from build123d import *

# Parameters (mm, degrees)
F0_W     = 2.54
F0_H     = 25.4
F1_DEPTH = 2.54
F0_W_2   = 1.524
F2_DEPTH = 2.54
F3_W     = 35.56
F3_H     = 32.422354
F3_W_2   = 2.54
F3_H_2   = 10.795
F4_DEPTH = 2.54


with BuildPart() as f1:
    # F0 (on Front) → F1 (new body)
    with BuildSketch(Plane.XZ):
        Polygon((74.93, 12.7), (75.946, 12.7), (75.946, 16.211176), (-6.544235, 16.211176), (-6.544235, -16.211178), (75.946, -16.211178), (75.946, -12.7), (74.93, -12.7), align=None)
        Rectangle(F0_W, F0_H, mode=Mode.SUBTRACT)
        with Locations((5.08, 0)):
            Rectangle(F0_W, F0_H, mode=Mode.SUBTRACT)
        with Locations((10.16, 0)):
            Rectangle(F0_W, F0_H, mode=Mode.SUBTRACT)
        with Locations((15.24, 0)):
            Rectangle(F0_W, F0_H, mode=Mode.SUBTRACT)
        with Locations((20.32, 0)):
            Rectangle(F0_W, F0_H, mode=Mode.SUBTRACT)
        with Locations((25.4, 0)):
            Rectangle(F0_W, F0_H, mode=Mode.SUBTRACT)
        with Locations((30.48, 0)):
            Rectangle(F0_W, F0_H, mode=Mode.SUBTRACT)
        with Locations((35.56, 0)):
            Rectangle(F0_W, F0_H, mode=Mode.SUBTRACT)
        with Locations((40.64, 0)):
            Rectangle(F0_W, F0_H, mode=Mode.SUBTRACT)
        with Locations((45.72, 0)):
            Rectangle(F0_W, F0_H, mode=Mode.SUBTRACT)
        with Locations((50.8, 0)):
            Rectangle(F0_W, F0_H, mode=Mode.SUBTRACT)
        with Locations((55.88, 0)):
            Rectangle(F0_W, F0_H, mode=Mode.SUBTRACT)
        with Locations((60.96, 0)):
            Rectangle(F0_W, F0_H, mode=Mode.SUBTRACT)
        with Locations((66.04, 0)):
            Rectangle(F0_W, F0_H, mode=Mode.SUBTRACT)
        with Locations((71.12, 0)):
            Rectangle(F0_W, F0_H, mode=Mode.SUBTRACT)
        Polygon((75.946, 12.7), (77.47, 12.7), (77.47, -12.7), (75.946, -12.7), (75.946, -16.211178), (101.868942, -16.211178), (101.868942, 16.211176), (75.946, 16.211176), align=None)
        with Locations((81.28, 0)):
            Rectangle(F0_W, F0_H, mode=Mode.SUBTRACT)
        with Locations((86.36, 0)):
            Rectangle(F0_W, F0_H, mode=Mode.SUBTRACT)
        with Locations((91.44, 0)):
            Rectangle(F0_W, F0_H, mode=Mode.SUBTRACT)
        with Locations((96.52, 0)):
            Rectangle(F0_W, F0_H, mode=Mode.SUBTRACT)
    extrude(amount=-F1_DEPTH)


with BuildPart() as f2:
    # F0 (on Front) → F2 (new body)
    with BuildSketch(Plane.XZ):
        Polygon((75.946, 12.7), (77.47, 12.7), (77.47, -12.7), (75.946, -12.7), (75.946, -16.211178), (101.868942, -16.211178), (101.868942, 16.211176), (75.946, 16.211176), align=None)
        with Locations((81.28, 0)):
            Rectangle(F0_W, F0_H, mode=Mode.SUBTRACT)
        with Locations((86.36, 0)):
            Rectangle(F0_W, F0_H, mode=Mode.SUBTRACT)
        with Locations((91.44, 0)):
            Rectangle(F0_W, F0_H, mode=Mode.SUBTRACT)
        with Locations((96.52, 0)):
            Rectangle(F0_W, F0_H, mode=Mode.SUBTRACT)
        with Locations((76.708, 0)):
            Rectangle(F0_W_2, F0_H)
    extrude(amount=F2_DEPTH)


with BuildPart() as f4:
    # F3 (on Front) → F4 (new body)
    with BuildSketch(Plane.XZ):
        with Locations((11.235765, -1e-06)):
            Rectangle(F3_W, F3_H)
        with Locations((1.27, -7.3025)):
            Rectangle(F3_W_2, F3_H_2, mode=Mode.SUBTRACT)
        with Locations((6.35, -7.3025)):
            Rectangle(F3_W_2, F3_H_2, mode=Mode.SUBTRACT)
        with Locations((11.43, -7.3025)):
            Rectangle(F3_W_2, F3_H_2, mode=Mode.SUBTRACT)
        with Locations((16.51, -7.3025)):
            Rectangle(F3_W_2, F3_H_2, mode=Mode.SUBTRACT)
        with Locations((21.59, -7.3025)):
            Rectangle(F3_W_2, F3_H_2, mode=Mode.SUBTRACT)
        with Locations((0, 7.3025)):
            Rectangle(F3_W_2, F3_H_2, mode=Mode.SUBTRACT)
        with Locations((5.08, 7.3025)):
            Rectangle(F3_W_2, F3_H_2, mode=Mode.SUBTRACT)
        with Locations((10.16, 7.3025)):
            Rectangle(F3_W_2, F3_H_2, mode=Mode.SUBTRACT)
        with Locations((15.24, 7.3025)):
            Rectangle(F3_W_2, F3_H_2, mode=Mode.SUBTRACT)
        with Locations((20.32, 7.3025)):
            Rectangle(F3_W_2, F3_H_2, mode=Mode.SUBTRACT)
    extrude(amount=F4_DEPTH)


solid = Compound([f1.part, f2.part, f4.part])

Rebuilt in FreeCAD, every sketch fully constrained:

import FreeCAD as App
import Part
import Sketcher
Q = App.Units.Quantity


def add_polygon(sketch, points):
    """Adds a closed chain of lines whose ends are joined by coincident constraints."""
    first, n = sketch.GeometryCount, len(points)
    for a, b in zip(points, points[1:] + points[:1]):
        sketch.addGeometry(Part.LineSegment(App.Vector(*a, 0), App.Vector(*b, 0)), False)
    for i in range(n):
        sketch.addConstraint(Sketcher.Constraint("Coincident", first + i, 2, first + (i + 1) % n, 1))

doc = App.newDocument("Part")
body = doc.addObject("PartDesign::Body", "Body")

# Sketch on XZ plane
sketch1 = doc.addObject("Sketcher::SketchObject", "Sketch")
body.addObject(sketch1)
sketch1.AttachmentSupport = (doc.XZ_Plane, [""])
sketch1.MapMode = "FlatFace"
add_polygon(sketch1, [(-6.544235, 16.211176), (-6.544235, -16.211178), (101.868942, -16.211178), (101.868942, 16.211176)])  # lines 0-3
add_polygon(sketch1, [(1.27, -12.7), (-1.27, -12.7), (-1.27, 12.7), (1.27, 12.7)])  # lines 4-7
add_polygon(sketch1, [(6.35, -12.7), (3.81, -12.7), (3.81, 12.7), (6.35, 12.7)])  # lines 8-11
add_polygon(sketch1, [(11.43, -12.7), (8.89, -12.7), (8.89, 12.7), (11.43, 12.7)])  # lines 12-15
add_polygon(sketch1, [(16.51, -12.7), (13.97, -12.7), (13.97, 12.7), (16.51, 12.7)])  # lines 16-19
add_polygon(sketch1, [(21.59, -12.7), (19.05, -12.7), (19.05, 12.7), (21.59, 12.7)])  # lines 20-23
add_polygon(sketch1, [(26.67, -12.7), (24.13, -12.7), (24.13, 12.7), (26.67, 12.7)])  # lines 24-27
add_polygon(sketch1, [(31.75, -12.7), (29.21, -12.7), (29.21, 12.7), (31.75, 12.7)])  # lines 28-31
add_polygon(sketch1, [(36.83, -12.7), (34.29, -12.7), (34.29, 12.7), (36.83, 12.7)])  # lines 32-35
add_polygon(sketch1, [(41.91, -12.7), (39.37, -12.7), (39.37, 12.7), (41.91, 12.7)])  # lines 36-39
add_polygon(sketch1, [(46.99, -12.7), (44.45, -12.7), (44.45, 12.7), (46.99, 12.7)])  # lines 40-43
add_polygon(sketch1, [(52.07, -12.7), (49.53, -12.7), (49.53, 12.7), (52.07, 12.7)])  # lines 44-47
add_polygon(sketch1, [(57.15, -12.7), (54.61, -12.7), (54.61, 12.7), (57.15, 12.7)])  # lines 48-51
add_polygon(sketch1, [(62.23, -12.7), (59.69, -12.7), (59.69, 12.7), (62.23, 12.7)])  # lines 52-55
add_polygon(sketch1, [(67.31, -12.7), (64.77, -12.7), (64.77, 12.7), (67.31, 12.7)])  # lines 56-59
add_polygon(sketch1, [(72.39, -12.7), (69.85, -12.7), (69.85, 12.7), (72.39, 12.7)])  # lines 60-63
add_polygon(sketch1, [(74.93, 12.7), (77.47, 12.7), (77.47, -12.7), (74.93, -12.7)])  # lines 64-67
add_polygon(sketch1, [(82.55, -12.7), (80.01, -12.7), (80.01, 12.7), (82.55, 12.7)])  # lines 68-71
add_polygon(sketch1, [(87.63, -12.7), (85.09, -12.7), (85.09, 12.7), (87.63, 12.7)])  # lines 72-75
add_polygon(sketch1, [(92.71, -12.7), (90.17, -12.7), (90.17, 12.7), (92.71, 12.7)])  # lines 76-79
add_polygon(sketch1, [(97.79, -12.7), (95.25, -12.7), (95.25, 12.7), (97.79, 12.7)])  # lines 80-83
sketch1.addConstraint(Sketcher.Constraint("Vertical", 0))
sketch1.addConstraint(Sketcher.Constraint("Horizontal", 1))
sketch1.addConstraint(Sketcher.Constraint("Vertical", 2))
sketch1.addConstraint(Sketcher.Constraint("Horizontal", 3))
sketch1.addConstraint(Sketcher.Constraint("Horizontal", 4))
sketch1.addConstraint(Sketcher.Constraint("Vertical", 5))
sketch1.addConstraint(Sketcher.Constraint("Horizontal", 6))
sketch1.addConstraint(Sketcher.Constraint("Vertical", 7))
sketch1.addConstraint(Sketcher.Constraint("Horizontal", 8))
sketch1.addConstraint(Sketcher.Constraint("Vertical", 9))
sketch1.addConstraint(Sketcher.Constraint("Horizontal", 10))
sketch1.addConstraint(Sketcher.Constraint("Vertical", 11))
sketch1.addConstraint(Sketcher.Constraint("Horizontal", 12))
sketch1.addConstraint(Sketcher.Constraint("Vertical", 13))
sketch1.addConstraint(Sketcher.Constraint("Horizontal", 14))
sketch1.addConstraint(Sketcher.Constraint("Vertical", 15))
sketch1.addConstraint(Sketcher.Constraint("Horizontal", 16))
sketch1.addConstraint(Sketcher.Constraint("Vertical", 17))
sketch1.addConstraint(Sketcher.Constraint("Horizontal", 18))
sketch1.addConstraint(Sketcher.Constraint("Vertical", 19))
sketch1.addConstraint(Sketcher.Constraint("Horizontal", 20))
sketch1.addConstraint(Sketcher.Constraint("Vertical", 21))
sketch1.addConstraint(Sketcher.Constraint("Horizontal", 22))
sketch1.addConstraint(Sketcher.Constraint("Vertical", 23))
sketch1.addConstraint(Sketcher.Constraint("Horizontal", 24))
sketch1.addConstraint(Sketcher.Constraint("Vertical", 25))
sketch1.addConstraint(Sketcher.Constraint("Horizontal", 26))
sketch1.addConstraint(Sketcher.Constraint("Vertical", 27))
sketch1.addConstraint(Sketcher.Constraint("Horizontal", 28))
sketch1.addConstraint(Sketcher.Constraint("Vertical", 29))
sketch1.addConstraint(Sketcher.Constraint("Horizontal", 30))
sketch1.addConstraint(Sketcher.Constraint("Vertical", 31))
sketch1.addConstraint(Sketcher.Constraint("Horizontal", 32))
sketch1.addConstraint(Sketcher.Constraint("Vertical", 33))
sketch1.addConstraint(Sketcher.Constraint("Horizontal", 34))
sketch1.addConstraint(Sketcher.Constraint("Vertical", 35))
sketch1.addConstraint(Sketcher.Constraint("Horizontal", 36))
sketch1.addConstraint(Sketcher.Constraint("Vertical", 37))
sketch1.addConstraint(Sketcher.Constraint("Horizontal", 38))
sketch1.addConstraint(Sketcher.Constraint("Vertical", 39))
sketch1.addConstraint(Sketcher.Constraint("Horizontal", 40))
sketch1.addConstraint(Sketcher.Constraint("Vertical", 41))
sketch1.addConstraint(Sketcher.Constraint("Horizontal", 42))
sketch1.addConstraint(Sketcher.Constraint("Vertical", 43))
sketch1.addConstraint(Sketcher.Constraint("Horizontal", 44))
sketch1.addConstraint(Sketcher.Constraint("Vertical", 45))
sketch1.addConstraint(Sketcher.Constraint("Horizontal", 46))
sketch1.addConstraint(Sketcher.Constraint("Vertical", 47))
sketch1.addConstraint(Sketcher.Constraint("Horizontal", 48))
sketch1.addConstraint(Sketcher.Constraint("Vertical", 49))
sketch1.addConstraint(Sketcher.Constraint("Horizontal", 50))
sketch1.addConstraint(Sketcher.Constraint("Vertical", 51))
sketch1.addConstraint(Sketcher.Constraint("Horizontal", 52))
sketch1.addConstraint(Sketcher.Constraint("Vertical", 53))
sketch1.addConstraint(Sketcher.Constraint("Horizontal", 54))
sketch1.addConstraint(Sketcher.Constraint("Vertical", 55))
sketch1.addConstraint(Sketcher.Constraint("Horizontal", 56))
sketch1.addConstraint(Sketcher.Constraint("Vertical", 57))
sketch1.addConstraint(Sketcher.Constraint("Horizontal", 58))
sketch1.addConstraint(Sketcher.Constraint("Vertical", 59))
sketch1.addConstraint(Sketcher.Constraint("Horizontal", 60))
sketch1.addConstraint(Sketcher.Constraint("Vertical", 61))
sketch1.addConstraint(Sketcher.Constraint("Horizontal", 62))
sketch1.addConstraint(Sketcher.Constraint("Vertical", 63))
sketch1.addConstraint(Sketcher.Constraint("Horizontal", 64))
sketch1.addConstraint(Sketcher.Constraint("Vertical", 65))
sketch1.addConstraint(Sketcher.Constraint("Horizontal", 66))
sketch1.addConstraint(Sketcher.Constraint("Vertical", 67))
sketch1.addConstraint(Sketcher.Constraint("Horizontal", 68))
sketch1.addConstraint(Sketcher.Constraint("Vertical", 69))
sketch1.addConstraint(Sketcher.Constraint("Horizontal", 70))
sketch1.addConstraint(Sketcher.Constraint("Vertical", 71))
sketch1.addConstraint(Sketcher.Constraint("Horizontal", 72))
sketch1.addConstraint(Sketcher.Constraint("Vertical", 73))
sketch1.addConstraint(Sketcher.Constraint("Horizontal", 74))
sketch1.addConstraint(Sketcher.Constraint("Vertical", 75))
sketch1.addConstraint(Sketcher.Constraint("Horizontal", 76))
sketch1.addConstraint(Sketcher.Constraint("Vertical", 77))
sketch1.addConstraint(Sketcher.Constraint("Horizontal", 78))
sketch1.addConstraint(Sketcher.Constraint("Vertical", 79))
sketch1.addConstraint(Sketcher.Constraint("Horizontal", 80))
sketch1.addConstraint(Sketcher.Constraint("Vertical", 81))
sketch1.addConstraint(Sketcher.Constraint("Horizontal", 82))
sketch1.addConstraint(Sketcher.Constraint("Vertical", 83))
sketch1.addConstraint(Sketcher.Constraint("Symmetric", 4, 2, 6, 2, -1, 1))
sketch1.addConstraint(Sketcher.Constraint("Horizontal", 7, 2, 8, 2))
sketch1.addConstraint(Sketcher.Constraint("Horizontal", 6, 2, 9, 2))
sketch1.addConstraint(Sketcher.Constraint("Horizontal", 11, 2, 12, 2))
sketch1.addConstraint(Sketcher.Constraint("Horizontal", 10, 2, 13, 2))
sketch1.addConstraint(Sketcher.Constraint("Horizontal", 15, 2, 16, 2))
sketch1.addConstraint(Sketcher.Constraint("Horizontal", 14, 2, 17, 2))
sketch1.addConstraint(Sketcher.Constraint("Horizontal", 19, 2, 20, 2))
sketch1.addConstraint(Sketcher.Constraint("Horizontal", 18, 2, 21, 2))
sketch1.addConstraint(Sketcher.Constraint("Horizontal", 23, 2, 24, 2))
sketch1.addConstraint(Sketcher.Constraint("Horizontal", 22, 2, 25, 2))
sketch1.addConstraint(Sketcher.Constraint("Horizontal", 27, 2, 28, 2))
sketch1.addConstraint(Sketcher.Constraint("Horizontal", 26, 2, 29, 2))
sketch1.addConstraint(Sketcher.Constraint("Horizontal", 31, 2, 32, 2))
sketch1.addConstraint(Sketcher.Constraint("Horizontal", 30, 2, 33, 2))
sketch1.addConstraint(Sketcher.Constraint("Horizontal", 35, 2, 36, 2))
sketch1.addConstraint(Sketcher.Constraint("Horizontal", 34, 2, 37, 2))
sketch1.addConstraint(Sketcher.Constraint("Horizontal", 39, 2, 40, 2))
sketch1.addConstraint(Sketcher.Constraint("Horizontal", 38, 2, 41, 2))
sketch1.addConstraint(Sketcher.Constraint("Horizontal", 43, 2, 44, 2))
sketch1.addConstraint(Sketcher.Constraint("Horizontal", 42, 2, 45, 2))
sketch1.addConstraint(Sketcher.Constraint("Horizontal", 47, 2, 48, 2))
sketch1.addConstraint(Sketcher.Constraint("Horizontal", 46, 2, 49, 2))
sketch1.addConstraint(Sketcher.Constraint("Horizontal", 51, 2, 52, 2))
sketch1.addConstraint(Sketcher.Constraint("Horizontal", 50, 2, 53, 2))
sketch1.addConstraint(Sketcher.Constraint("Horizontal", 55, 2, 56, 2))
sketch1.addConstraint(Sketcher.Constraint("Horizontal", 54, 2, 57, 2))
sketch1.addConstraint(Sketcher.Constraint("Horizontal", 59, 2, 60, 2))
sketch1.addConstraint(Sketcher.Constraint("Horizontal", 58, 2, 61, 2))
sketch1.addConstraint(Sketcher.Constraint("Horizontal", 62, 2, 64, 2))
sketch1.addConstraint(Sketcher.Constraint("Horizontal", 63, 2, 65, 2))
sketch1.addConstraint(Sketcher.Constraint("Horizontal", 66, 2, 68, 2))
sketch1.addConstraint(Sketcher.Constraint("Horizontal", 67, 2, 69, 2))
sketch1.addConstraint(Sketcher.Constraint("Horizontal", 71, 2, 72, 2))
sketch1.addConstraint(Sketcher.Constraint("Horizontal", 70, 2, 73, 2))
sketch1.addConstraint(Sketcher.Constraint("Horizontal", 75, 2, 76, 2))
sketch1.addConstraint(Sketcher.Constraint("Horizontal", 74, 2, 77, 2))
sketch1.addConstraint(Sketcher.Constraint("Horizontal", 79, 2, 80, 2))
sketch1.addConstraint(Sketcher.Constraint("Horizontal", 78, 2, 81, 2))
sketch1.addConstraint(Sketcher.Constraint("Equal", 6, 8))
sketch1.addConstraint(Sketcher.Constraint("Equal", 10, 12))
sketch1.addConstraint(Sketcher.Constraint("Equal", 14, 16))
sketch1.addConstraint(Sketcher.Constraint("Equal", 18, 20))
sketch1.addConstraint(Sketcher.Constraint("Equal", 22, 24))
sketch1.addConstraint(Sketcher.Constraint("Equal", 26, 28))
sketch1.addConstraint(Sketcher.Constraint("Equal", 30, 32))
sketch1.addConstraint(Sketcher.Constraint("Equal", 34, 36))
sketch1.addConstraint(Sketcher.Constraint("Equal", 38, 40))
sketch1.addConstraint(Sketcher.Constraint("Equal", 42, 44))
sketch1.addConstraint(Sketcher.Constraint("Equal", 46, 48))
sketch1.addConstraint(Sketcher.Constraint("Equal", 50, 52))
sketch1.addConstraint(Sketcher.Constraint("Equal", 54, 56))
sketch1.addConstraint(Sketcher.Constraint("Equal", 58, 60))
sketch1.addConstraint(Sketcher.Constraint("Equal", 62, 64))
sketch1.addConstraint(Sketcher.Constraint("Equal", 66, 68))
sketch1.addConstraint(Sketcher.Constraint("Equal", 70, 72))
sketch1.addConstraint(Sketcher.Constraint("Equal", 74, 76))
sketch1.addConstraint(Sketcher.Constraint("Equal", 78, 80))
sketch1.addConstraint(Sketcher.Constraint("DistanceY", 5, 1, 5, 2, Q("1 in")))
sketch1.addConstraint(Sketcher.Constraint("DistanceX", 4, 2, 4, 1, Q("0.1 in")))
sketch1.addConstraint(Sketcher.Constraint("DistanceX", -1, 1, 8, 2, Q("0.15 in")))
sketch1.addConstraint(Sketcher.Constraint("DistanceX", -1, 1, 12, 2, Q("0.35 in")))
sketch1.addConstraint(Sketcher.Constraint("DistanceX", -1, 1, 16, 2, Q("0.55 in")))
sketch1.addConstraint(Sketcher.Constraint("DistanceX", -1, 1, 20, 2, Q("0.75 in")))
sketch1.addConstraint(Sketcher.Constraint("DistanceX", -1, 1, 24, 2, Q("0.95 in")))
sketch1.addConstraint(Sketcher.Constraint("DistanceX", -1, 1, 28, 2, Q("1.15 in")))
sketch1.addConstraint(Sketcher.Constraint("DistanceX", -1, 1, 32, 2, Q("1.35 in")))
sketch1.addConstraint(Sketcher.Constraint("DistanceX", -1, 1, 36, 2, Q("1.55 in")))
sketch1.addConstraint(Sketcher.Constraint("DistanceX", -1, 1, 40, 2, Q("1.75 in")))
sketch1.addConstraint(Sketcher.Constraint("DistanceX", -1, 1, 44, 2, Q("1.95 in")))
sketch1.addConstraint(Sketcher.Constraint("DistanceX", -1, 1, 48, 2, Q("2.15 in")))
sketch1.addConstraint(Sketcher.Constraint("DistanceX", -1, 1, 52, 2, Q("2.35 in")))
sketch1.addConstraint(Sketcher.Constraint("DistanceX", -1, 1, 56, 2, Q("2.55 in")))
sketch1.addConstraint(Sketcher.Constraint("DistanceX", -1, 1, 60, 2, Q("2.75 in")))
sketch1.addConstraint(Sketcher.Constraint("DistanceX", -1, 1, 64, 2, Q("3.05 in")))
sketch1.addConstraint(Sketcher.Constraint("DistanceX", -1, 1, 68, 2, Q("3.15 in")))
sketch1.addConstraint(Sketcher.Constraint("DistanceX", -1, 1, 72, 2, Q("3.35 in")))
sketch1.addConstraint(Sketcher.Constraint("DistanceX", -1, 1, 76, 2, Q("3.55 in")))
sketch1.addConstraint(Sketcher.Constraint("DistanceX", -1, 1, 80, 2, Q("3.75 in")))
sketch1.addConstraint(Sketcher.Constraint("DistanceX", 1, 1, 1, 2, 108.413177))
sketch1.addConstraint(Sketcher.Constraint("DistanceY", 0, 2, 0, 1, 32.422354))
sketch1.addConstraint(Sketcher.Constraint("DistanceY", 0, 2, -1, 1, 16.211178))
sketch1.addConstraint(Sketcher.Constraint("DistanceX", 0, 2, -1, 1, 6.544235))
pad1 = doc.addObject("PartDesign::Pad", "Pad")
body.addObject(pad1)
pad1.Profile = sketch1
pad1.Length = Q("0.1 in")
pad1.Reversed = True
body2 = doc.addObject("PartDesign::Body", "Body001")

# Sketch on XZ plane
sketch2 = doc.addObject("Sketcher::SketchObject", "Sketch001")
body2.addObject(sketch2)
sketch2.AttachmentSupport = (doc.getObject("XZ_Plane001"), [""])
sketch2.MapMode = "FlatFace"
add_polygon(sketch2, [(75.946, 16.211176), (75.946, -16.211178), (101.868942, -16.211178), (101.868942, 16.211176)])  # lines 0-3
add_polygon(sketch2, [(82.55, -12.7), (80.01, -12.7), (80.01, 12.7), (82.55, 12.7)])  # lines 4-7
add_polygon(sketch2, [(87.63, -12.7), (85.09, -12.7), (85.09, 12.7), (87.63, 12.7)])  # lines 8-11
add_polygon(sketch2, [(92.71, -12.7), (90.17, -12.7), (90.17, 12.7), (92.71, 12.7)])  # lines 12-15
add_polygon(sketch2, [(97.79, -12.7), (95.25, -12.7), (95.25, 12.7), (97.79, 12.7)])  # lines 16-19
sketch2.addConstraint(Sketcher.Constraint("Vertical", 0))
sketch2.addConstraint(Sketcher.Constraint("Horizontal", 1))
sketch2.addConstraint(Sketcher.Constraint("Vertical", 2))
sketch2.addConstraint(Sketcher.Constraint("Horizontal", 3))
sketch2.addConstraint(Sketcher.Constraint("Horizontal", 4))
sketch2.addConstraint(Sketcher.Constraint("Vertical", 5))
sketch2.addConstraint(Sketcher.Constraint("Horizontal", 6))
sketch2.addConstraint(Sketcher.Constraint("Vertical", 7))
sketch2.addConstraint(Sketcher.Constraint("Horizontal", 8))
sketch2.addConstraint(Sketcher.Constraint("Vertical", 9))
sketch2.addConstraint(Sketcher.Constraint("Horizontal", 10))
sketch2.addConstraint(Sketcher.Constraint("Vertical", 11))
sketch2.addConstraint(Sketcher.Constraint("Horizontal", 12))
sketch2.addConstraint(Sketcher.Constraint("Vertical", 13))
sketch2.addConstraint(Sketcher.Constraint("Horizontal", 14))
sketch2.addConstraint(Sketcher.Constraint("Vertical", 15))
sketch2.addConstraint(Sketcher.Constraint("Horizontal", 16))
sketch2.addConstraint(Sketcher.Constraint("Vertical", 17))
sketch2.addConstraint(Sketcher.Constraint("Horizontal", 18))
sketch2.addConstraint(Sketcher.Constraint("Vertical", 19))
sketch2.addConstraint(Sketcher.Constraint("Horizontal", 7, 2, 8, 2))
sketch2.addConstraint(Sketcher.Constraint("Horizontal", 6, 2, 9, 2))
sketch2.addConstraint(Sketcher.Constraint("Horizontal", 11, 2, 12, 2))
sketch2.addConstraint(Sketcher.Constraint("Horizontal", 10, 2, 13, 2))
sketch2.addConstraint(Sketcher.Constraint("Horizontal", 15, 2, 16, 2))
sketch2.addConstraint(Sketcher.Constraint("Horizontal", 14, 2, 17, 2))
sketch2.addConstraint(Sketcher.Constraint("Equal", 6, 8))
sketch2.addConstraint(Sketcher.Constraint("Equal", 10, 12))
sketch2.addConstraint(Sketcher.Constraint("Equal", 14, 16))
sketch2.addConstraint(Sketcher.Constraint("DistanceY", 5, 1, 5, 2, Q("1 in")))
sketch2.addConstraint(Sketcher.Constraint("DistanceX", 4, 2, 4, 1, Q("0.1 in")))
sketch2.addConstraint(Sketcher.Constraint("DistanceY", 4, 2, -1, 1, Q("0.5 in")))
sketch2.addConstraint(Sketcher.Constraint("DistanceX", 7, 2, 8, 2, Q("0.1 in")))
sketch2.addConstraint(Sketcher.Constraint("DistanceX", 11, 2, 12, 2, Q("0.1 in")))
sketch2.addConstraint(Sketcher.Constraint("DistanceX", 15, 2, 16, 2, Q("0.1 in")))
sketch2.addConstraint(Sketcher.Constraint("DistanceX", -1, 1, 0, 2, Q("2.99 in")))
sketch2.addConstraint(Sketcher.Constraint("DistanceX", -1, 1, 4, 2, Q("3.15 in")))
sketch2.addConstraint(Sketcher.Constraint("DistanceX", 1, 1, 1, 2, 25.922942))
sketch2.addConstraint(Sketcher.Constraint("DistanceY", 0, 2, 0, 1, 32.422354))
sketch2.addConstraint(Sketcher.Constraint("DistanceY", 0, 2, -1, 1, 16.211178))
pad2 = doc.addObject("PartDesign::Pad", "Pad001")
body2.addObject(pad2)
pad2.Profile = sketch2
pad2.Length = Q("0.1 in")
body3 = doc.addObject("PartDesign::Body", "Body002")

# Sketch on XZ plane
sketch3 = doc.addObject("Sketcher::SketchObject", "Sketch002")
body3.addObject(sketch3)
sketch3.AttachmentSupport = (doc.getObject("XZ_Plane002"), [""])
sketch3.MapMode = "FlatFace"
add_polygon(sketch3, [(-6.544235, 16.211176), (-6.544235, -16.211178), (29.015765, -16.211178), (29.015765, 16.211176)])  # lines 0-3
add_polygon(sketch3, [(2.54, -12.7), (0, -12.7), (0, -1.905), (2.54, -1.905)])  # lines 4-7
add_polygon(sketch3, [(7.62, -12.7), (5.08, -12.7), (5.08, -1.905), (7.62, -1.905)])  # lines 8-11
add_polygon(sketch3, [(12.7, -12.7), (10.16, -12.7), (10.16, -1.905), (12.7, -1.905)])  # lines 12-15
add_polygon(sketch3, [(17.78, -12.7), (15.24, -12.7), (15.24, -1.905), (17.78, -1.905)])  # lines 16-19
add_polygon(sketch3, [(22.86, -12.7), (20.32, -12.7), (20.32, -1.905), (22.86, -1.905)])  # lines 20-23
add_polygon(sketch3, [(1.27, 1.905), (-1.27, 1.905), (-1.27, 12.7), (1.27, 12.7)])  # lines 24-27
add_polygon(sketch3, [(6.35, 1.905), (3.81, 1.905), (3.81, 12.7), (6.35, 12.7)])  # lines 28-31
add_polygon(sketch3, [(11.43, 1.905), (8.89, 1.905), (8.89, 12.7), (11.43, 12.7)])  # lines 32-35
add_polygon(sketch3, [(16.51, 1.905), (13.97, 1.905), (13.97, 12.7), (16.51, 12.7)])  # lines 36-39
add_polygon(sketch3, [(21.59, 1.905), (19.05, 1.905), (19.05, 12.7), (21.59, 12.7)])  # lines 40-43
sketch3.addConstraint(Sketcher.Constraint("Vertical", 0))
sketch3.addConstraint(Sketcher.Constraint("Horizontal", 1))
sketch3.addConstraint(Sketcher.Constraint("Vertical", 2))
sketch3.addConstraint(Sketcher.Constraint("Horizontal", 3))
sketch3.addConstraint(Sketcher.Constraint("Horizontal", 4))
sketch3.addConstraint(Sketcher.Constraint("Vertical", 5))
sketch3.addConstraint(Sketcher.Constraint("Horizontal", 6))
sketch3.addConstraint(Sketcher.Constraint("Vertical", 7))
sketch3.addConstraint(Sketcher.Constraint("Horizontal", 8))
sketch3.addConstraint(Sketcher.Constraint("Vertical", 9))
sketch3.addConstraint(Sketcher.Constraint("Horizontal", 10))
sketch3.addConstraint(Sketcher.Constraint("Vertical", 11))
sketch3.addConstraint(Sketcher.Constraint("Horizontal", 12))
sketch3.addConstraint(Sketcher.Constraint("Vertical", 13))
sketch3.addConstraint(Sketcher.Constraint("Horizontal", 14))
sketch3.addConstraint(Sketcher.Constraint("Vertical", 15))
sketch3.addConstraint(Sketcher.Constraint("Horizontal", 16))
sketch3.addConstraint(Sketcher.Constraint("Vertical", 17))
sketch3.addConstraint(Sketcher.Constraint("Horizontal", 18))
sketch3.addConstraint(Sketcher.Constraint("Vertical", 19))
sketch3.addConstraint(Sketcher.Constraint("Horizontal", 20))
sketch3.addConstraint(Sketcher.Constraint("Vertical", 21))
sketch3.addConstraint(Sketcher.Constraint("Horizontal", 22))
sketch3.addConstraint(Sketcher.Constraint("Vertical", 23))
sketch3.addConstraint(Sketcher.Constraint("Horizontal", 24))
sketch3.addConstraint(Sketcher.Constraint("Vertical", 25))
sketch3.addConstraint(Sketcher.Constraint("Horizontal", 26))
sketch3.addConstraint(Sketcher.Constraint("Vertical", 27))
sketch3.addConstraint(Sketcher.Constraint("Horizontal", 28))
sketch3.addConstraint(Sketcher.Constraint("Vertical", 29))
sketch3.addConstraint(Sketcher.Constraint("Horizontal", 30))
sketch3.addConstraint(Sketcher.Constraint("Vertical", 31))
sketch3.addConstraint(Sketcher.Constraint("Horizontal", 32))
sketch3.addConstraint(Sketcher.Constraint("Vertical", 33))
sketch3.addConstraint(Sketcher.Constraint("Horizontal", 34))
sketch3.addConstraint(Sketcher.Constraint("Vertical", 35))
sketch3.addConstraint(Sketcher.Constraint("Horizontal", 36))
sketch3.addConstraint(Sketcher.Constraint("Vertical", 37))
sketch3.addConstraint(Sketcher.Constraint("Horizontal", 38))
sketch3.addConstraint(Sketcher.Constraint("Vertical", 39))
sketch3.addConstraint(Sketcher.Constraint("Horizontal", 40))
sketch3.addConstraint(Sketcher.Constraint("Vertical", 41))
sketch3.addConstraint(Sketcher.Constraint("Horizontal", 42))
sketch3.addConstraint(Sketcher.Constraint("Vertical", 43))
sketch3.addConstraint(Sketcher.Constraint("PointOnObject", 4, 2, -2))
sketch3.addConstraint(Sketcher.Constraint("Horizontal", 7, 2, 8, 2))
sketch3.addConstraint(Sketcher.Constraint("Horizontal", 6, 2, 9, 2))
sketch3.addConstraint(Sketcher.Constraint("Horizontal", 11, 2, 12, 2))
sketch3.addConstraint(Sketcher.Constraint("Horizontal", 10, 2, 13, 2))
sketch3.addConstraint(Sketcher.Constraint("Horizontal", 15, 2, 16, 2))
sketch3.addConstraint(Sketcher.Constraint("Horizontal", 14, 2, 17, 2))
sketch3.addConstraint(Sketcher.Constraint("Horizontal", 19, 2, 20, 2))
sketch3.addConstraint(Sketcher.Constraint("Horizontal", 18, 2, 21, 2))
sketch3.addConstraint(Sketcher.Constraint("Horizontal", 27, 2, 28, 2))
sketch3.addConstraint(Sketcher.Constraint("Horizontal", 26, 2, 29, 2))
sketch3.addConstraint(Sketcher.Constraint("Horizontal", 31, 2, 32, 2))
sketch3.addConstraint(Sketcher.Constraint("Horizontal", 30, 2, 33, 2))
sketch3.addConstraint(Sketcher.Constraint("Horizontal", 35, 2, 36, 2))
sketch3.addConstraint(Sketcher.Constraint("Horizontal", 34, 2, 37, 2))
sketch3.addConstraint(Sketcher.Constraint("Horizontal", 39, 2, 40, 2))
sketch3.addConstraint(Sketcher.Constraint("Horizontal", 38, 2, 41, 2))
sketch3.addConstraint(Sketcher.Constraint("Equal", 6, 8))
sketch3.addConstraint(Sketcher.Constraint("Equal", 10, 12))
sketch3.addConstraint(Sketcher.Constraint("Equal", 14, 16))
sketch3.addConstraint(Sketcher.Constraint("Equal", 18, 20))
sketch3.addConstraint(Sketcher.Constraint("Equal", 22, 24))
sketch3.addConstraint(Sketcher.Constraint("Equal", 26, 28))
sketch3.addConstraint(Sketcher.Constraint("Equal", 30, 32))
sketch3.addConstraint(Sketcher.Constraint("Equal", 34, 36))
sketch3.addConstraint(Sketcher.Constraint("Equal", 38, 40))
sketch3.addConstraint(Sketcher.Constraint("Equal", 23, 25))
sketch3.addConstraint(Sketcher.Constraint("DistanceX", 1, 1, 1, 2, Q("1.4 in")))
sketch3.addConstraint(Sketcher.Constraint("DistanceX", 4, 2, 4, 1, Q("0.1 in")))
sketch3.addConstraint(Sketcher.Constraint("DistanceY", 4, 2, -1, 1, Q("0.5 in")))
sketch3.addConstraint(Sketcher.Constraint("DistanceX", -1, 1, 8, 2, Q("0.2 in")))
sketch3.addConstraint(Sketcher.Constraint("DistanceX", -1, 1, 12, 2, Q("0.4 in")))
sketch3.addConstraint(Sketcher.Constraint("DistanceX", -1, 1, 16, 2, Q("0.6 in")))
sketch3.addConstraint(Sketcher.Constraint("DistanceX", -1, 1, 20, 2, Q("0.8 in")))
sketch3.addConstraint(Sketcher.Constraint("DistanceY", -1, 1, 25, 2, Q("0.5 in")))
sketch3.addConstraint(Sketcher.Constraint("DistanceX", 27, 2, 28, 2, Q("0.1 in")))
sketch3.addConstraint(Sketcher.Constraint("DistanceX", 31, 2, 32, 2, Q("0.1 in")))
sketch3.addConstraint(Sketcher.Constraint("DistanceX", 35, 2, 36, 2, Q("0.1 in")))
sketch3.addConstraint(Sketcher.Constraint("DistanceX", 39, 2, 40, 2, Q("0.1 in")))
sketch3.addConstraint(Sketcher.Constraint("DistanceY", 5, 1, 5, 2, Q("0.425 in")))
sketch3.addConstraint(Sketcher.Constraint("DistanceX", 24, 2, -1, 1, Q("0.05 in")))
sketch3.addConstraint(Sketcher.Constraint("DistanceY", 0, 2, 0, 1, 32.422354))
sketch3.addConstraint(Sketcher.Constraint("DistanceY", 0, 2, -1, 1, 16.211178))
sketch3.addConstraint(Sketcher.Constraint("DistanceX", 0, 2, -1, 1, 6.544235))
pad3 = doc.addObject("PartDesign::Pad", "Pad002")
body3.addObject(pad3)
pad3.Profile = sketch3
pad3.Length = Q("0.1 in")

doc.recompute()
